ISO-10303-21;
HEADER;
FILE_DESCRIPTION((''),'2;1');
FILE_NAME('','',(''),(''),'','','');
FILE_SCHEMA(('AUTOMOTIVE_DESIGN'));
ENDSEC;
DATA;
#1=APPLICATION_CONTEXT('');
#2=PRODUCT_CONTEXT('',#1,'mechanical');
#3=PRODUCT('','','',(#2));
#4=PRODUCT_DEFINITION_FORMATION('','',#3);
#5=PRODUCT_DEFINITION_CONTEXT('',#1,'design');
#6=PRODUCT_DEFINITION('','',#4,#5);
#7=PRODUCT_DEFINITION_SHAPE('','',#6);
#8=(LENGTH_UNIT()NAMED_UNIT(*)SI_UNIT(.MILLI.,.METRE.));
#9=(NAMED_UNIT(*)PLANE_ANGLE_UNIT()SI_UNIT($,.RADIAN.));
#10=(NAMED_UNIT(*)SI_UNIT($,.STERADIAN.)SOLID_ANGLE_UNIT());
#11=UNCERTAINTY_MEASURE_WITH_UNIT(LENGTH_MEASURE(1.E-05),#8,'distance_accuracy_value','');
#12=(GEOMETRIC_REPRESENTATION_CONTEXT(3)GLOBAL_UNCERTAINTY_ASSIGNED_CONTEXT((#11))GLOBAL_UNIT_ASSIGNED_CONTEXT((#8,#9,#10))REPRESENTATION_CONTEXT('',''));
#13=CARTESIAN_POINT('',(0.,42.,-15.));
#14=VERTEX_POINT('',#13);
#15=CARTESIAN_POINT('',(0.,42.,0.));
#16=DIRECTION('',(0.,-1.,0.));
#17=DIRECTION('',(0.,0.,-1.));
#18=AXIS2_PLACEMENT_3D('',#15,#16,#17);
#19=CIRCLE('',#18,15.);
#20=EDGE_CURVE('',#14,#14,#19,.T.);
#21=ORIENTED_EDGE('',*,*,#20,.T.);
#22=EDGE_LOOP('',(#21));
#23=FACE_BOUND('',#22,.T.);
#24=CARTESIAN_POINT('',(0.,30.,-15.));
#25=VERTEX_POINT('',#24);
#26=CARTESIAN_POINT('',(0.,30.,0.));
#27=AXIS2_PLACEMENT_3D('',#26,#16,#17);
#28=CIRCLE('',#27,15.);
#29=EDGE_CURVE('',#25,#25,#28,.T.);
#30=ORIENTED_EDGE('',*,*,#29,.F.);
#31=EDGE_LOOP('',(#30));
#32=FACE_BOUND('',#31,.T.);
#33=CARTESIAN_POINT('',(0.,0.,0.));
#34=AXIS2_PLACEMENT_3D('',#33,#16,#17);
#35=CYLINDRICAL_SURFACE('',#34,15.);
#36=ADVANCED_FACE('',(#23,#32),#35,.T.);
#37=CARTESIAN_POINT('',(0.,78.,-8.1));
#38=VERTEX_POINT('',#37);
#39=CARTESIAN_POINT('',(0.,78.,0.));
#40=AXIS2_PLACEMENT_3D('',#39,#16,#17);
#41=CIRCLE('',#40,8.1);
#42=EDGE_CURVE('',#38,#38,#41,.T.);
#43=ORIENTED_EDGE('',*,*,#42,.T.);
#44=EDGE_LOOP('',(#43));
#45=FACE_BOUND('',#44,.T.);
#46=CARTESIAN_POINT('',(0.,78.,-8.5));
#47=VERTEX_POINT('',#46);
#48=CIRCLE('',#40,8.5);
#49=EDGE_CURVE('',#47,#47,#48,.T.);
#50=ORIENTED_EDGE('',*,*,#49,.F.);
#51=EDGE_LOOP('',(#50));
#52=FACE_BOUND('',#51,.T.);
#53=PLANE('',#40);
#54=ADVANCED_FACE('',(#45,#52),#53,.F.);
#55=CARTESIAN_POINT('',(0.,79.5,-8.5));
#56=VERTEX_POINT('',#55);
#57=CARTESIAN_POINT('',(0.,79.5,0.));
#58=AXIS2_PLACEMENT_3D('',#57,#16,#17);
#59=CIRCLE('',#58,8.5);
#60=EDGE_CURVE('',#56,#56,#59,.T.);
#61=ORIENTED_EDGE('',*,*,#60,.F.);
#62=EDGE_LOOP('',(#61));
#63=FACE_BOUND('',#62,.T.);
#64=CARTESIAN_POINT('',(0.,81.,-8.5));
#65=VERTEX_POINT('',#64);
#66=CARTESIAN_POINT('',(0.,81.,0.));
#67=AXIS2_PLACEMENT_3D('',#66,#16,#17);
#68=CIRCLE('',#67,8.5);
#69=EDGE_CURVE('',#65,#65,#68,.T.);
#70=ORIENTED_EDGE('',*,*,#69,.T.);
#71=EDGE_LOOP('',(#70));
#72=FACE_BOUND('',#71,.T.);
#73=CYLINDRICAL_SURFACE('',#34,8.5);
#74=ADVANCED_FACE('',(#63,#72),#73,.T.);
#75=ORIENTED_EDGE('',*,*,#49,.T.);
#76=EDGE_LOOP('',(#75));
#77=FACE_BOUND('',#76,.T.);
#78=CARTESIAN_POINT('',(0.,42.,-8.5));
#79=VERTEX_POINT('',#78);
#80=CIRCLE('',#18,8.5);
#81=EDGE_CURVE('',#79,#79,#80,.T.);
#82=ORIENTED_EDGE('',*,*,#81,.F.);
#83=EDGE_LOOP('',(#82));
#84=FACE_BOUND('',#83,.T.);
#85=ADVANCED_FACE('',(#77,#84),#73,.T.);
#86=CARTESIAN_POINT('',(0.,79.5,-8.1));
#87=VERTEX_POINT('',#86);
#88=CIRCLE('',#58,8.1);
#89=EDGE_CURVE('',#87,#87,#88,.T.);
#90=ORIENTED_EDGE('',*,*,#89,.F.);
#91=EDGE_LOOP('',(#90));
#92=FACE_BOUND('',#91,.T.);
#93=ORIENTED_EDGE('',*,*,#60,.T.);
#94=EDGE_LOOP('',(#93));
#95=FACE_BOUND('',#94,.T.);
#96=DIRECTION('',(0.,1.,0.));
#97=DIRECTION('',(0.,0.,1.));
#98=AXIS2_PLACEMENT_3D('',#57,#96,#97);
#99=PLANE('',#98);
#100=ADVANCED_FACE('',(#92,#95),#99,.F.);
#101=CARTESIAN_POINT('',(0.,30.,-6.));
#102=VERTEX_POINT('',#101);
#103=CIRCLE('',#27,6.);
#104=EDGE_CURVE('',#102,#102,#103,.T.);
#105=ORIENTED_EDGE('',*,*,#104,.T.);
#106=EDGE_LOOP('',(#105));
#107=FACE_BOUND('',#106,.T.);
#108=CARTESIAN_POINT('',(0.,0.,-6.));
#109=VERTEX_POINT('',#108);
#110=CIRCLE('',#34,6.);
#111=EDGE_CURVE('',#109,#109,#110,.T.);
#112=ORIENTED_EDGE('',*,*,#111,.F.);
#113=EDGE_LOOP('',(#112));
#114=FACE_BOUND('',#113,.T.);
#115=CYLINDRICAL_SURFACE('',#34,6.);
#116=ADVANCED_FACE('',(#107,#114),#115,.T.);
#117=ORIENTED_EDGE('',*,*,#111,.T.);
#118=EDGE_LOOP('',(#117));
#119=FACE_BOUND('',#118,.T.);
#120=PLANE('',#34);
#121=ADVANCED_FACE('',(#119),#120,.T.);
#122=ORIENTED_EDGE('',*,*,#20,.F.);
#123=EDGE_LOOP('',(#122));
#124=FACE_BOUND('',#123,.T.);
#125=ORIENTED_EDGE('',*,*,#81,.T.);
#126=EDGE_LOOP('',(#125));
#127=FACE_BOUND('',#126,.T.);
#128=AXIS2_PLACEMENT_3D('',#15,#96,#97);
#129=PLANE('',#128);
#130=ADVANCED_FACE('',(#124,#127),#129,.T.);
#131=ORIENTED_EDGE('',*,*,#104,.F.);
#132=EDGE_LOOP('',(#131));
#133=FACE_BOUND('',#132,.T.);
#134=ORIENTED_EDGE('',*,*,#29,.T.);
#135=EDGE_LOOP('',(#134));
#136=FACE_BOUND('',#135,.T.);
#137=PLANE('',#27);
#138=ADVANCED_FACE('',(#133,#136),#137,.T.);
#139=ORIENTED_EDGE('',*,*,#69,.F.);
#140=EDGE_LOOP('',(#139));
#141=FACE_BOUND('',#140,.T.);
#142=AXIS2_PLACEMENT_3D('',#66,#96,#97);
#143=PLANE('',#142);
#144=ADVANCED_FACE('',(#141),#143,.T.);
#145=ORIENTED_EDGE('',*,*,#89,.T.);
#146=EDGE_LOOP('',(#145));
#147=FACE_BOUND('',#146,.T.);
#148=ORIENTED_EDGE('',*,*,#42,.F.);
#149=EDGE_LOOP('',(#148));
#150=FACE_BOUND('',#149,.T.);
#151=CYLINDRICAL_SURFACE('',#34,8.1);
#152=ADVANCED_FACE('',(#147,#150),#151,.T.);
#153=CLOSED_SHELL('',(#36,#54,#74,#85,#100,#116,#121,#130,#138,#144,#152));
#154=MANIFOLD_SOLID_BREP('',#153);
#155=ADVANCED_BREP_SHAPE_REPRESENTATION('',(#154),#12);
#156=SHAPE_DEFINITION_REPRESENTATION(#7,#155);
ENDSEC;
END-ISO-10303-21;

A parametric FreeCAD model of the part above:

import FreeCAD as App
import Part
import Sketcher

V = App.Vector

doc = App.newDocument("Part")
params = doc.addObject("Spreadsheet::Sheet", "Params")
for row, (alias, value) in enumerate([
    ("sketch1_width", "6 mm"),
    ("sketch1_width2", "9 mm"),
    ("sketch1_height", "81 mm"),
    ("sketch1_height2", "30 mm"),
    ("sketch1_height3", "12 mm"),
    ("revolution_angle", "360 deg"),
], start=1):
    params.set(f"A{row}", alias)
    params.set(f"B{row}", "=" + value)
    params.setAlias(f"B{row}", alias)

body = doc.addObject("PartDesign::Body", "Body")

sketch1 = body.newObject("Sketcher::SketchObject", "Sketch")
sketch1.AttachmentSupport = (doc.getObject("XY_Plane"), [""])
sketch1.MapMode = "FlatFace"
sketch1.addGeometry(Part.LineSegment(V(0, 81, 0), V(0, 0, 0)), False)
sketch1.addGeometry(Part.LineSegment(V(0, 0, 0), V(6, 0, 0)), False)
sketch1.addGeometry(Part.LineSegment(V(6, 0, 0), V(6, 30, 0)), False)
sketch1.addGeometry(Part.LineSegment(V(6, 30, 0), V(15, 30, 0)), False)
sketch1.addGeometry(Part.LineSegment(V(15, 30, 0), V(15, 42, 0)), False)
sketch1.addGeometry(Part.LineSegment(V(15, 42, 0), V(8.5, 42, 0)), False)
sketch1.addGeometry(Part.LineSegment(V(8.5, 42, 0), V(8.5, 78, 0)), False)
sketch1.addGeometry(Part.LineSegment(V(8.5, 78, 0), V(8.1, 78, 0)), False)
sketch1.addGeometry(Part.LineSegment(V(8.1, 78, 0), V(8.1, 79.5, 0)), False)
sketch1.addGeometry(Part.LineSegment(V(8.1, 79.5, 0), V(8.5, 79.5, 0)), False)
sketch1.addGeometry(Part.LineSegment(V(8.5, 79.5, 0), V(8.5, 81, 0)), False)
sketch1.addGeometry(Part.LineSegment(V(8.5, 81, 0), V(0, 81, 0)), False)
sketch1.addConstraint(Sketcher.Constraint("Coincident", 0, 2, 1, 1))
sketch1.addConstraint(Sketcher.Constraint("Coincident", 1, 2, 2, 1))
sketch1.addConstraint(Sketcher.Constraint("Coincident", 2, 2, 3, 1))
sketch1.addConstraint(Sketcher.Constraint("Coincident", 3, 2, 4, 1))
sketch1.addConstraint(Sketcher.Constraint("Coincident", 4, 2, 5, 1))
sketch1.addConstraint(Sketcher.Constraint("Coincident", 5, 2, 6, 1))
sketch1.addConstraint(Sketcher.Constraint("Coincident", 6, 2, 7, 1))
sketch1.addConstraint(Sketcher.Constraint("Coincident", 7, 2, 8, 1))
sketch1.addConstraint(Sketcher.Constraint("Coincident", 8, 2, 9, 1))
sketch1.addConstraint(Sketcher.Constraint("Coincident", 9, 2, 10, 1))
sketch1.addConstraint(Sketcher.Constraint("Coincident", 10, 2, 11, 1))
sketch1.addConstraint(Sketcher.Constraint("Coincident", 11, 2, 0, 1))
sketch1.addConstraint(Sketcher.Constraint("Vertical", 0))
sketch1.addConstraint(Sketcher.Constraint("Horizontal", 1))
sketch1.addConstraint(Sketcher.Constraint("Vertical", 2))
sketch1.addConstraint(Sketcher.Constraint("Horizontal", 3))
sketch1.addConstraint(Sketcher.Constraint("Vertical", 4))
sketch1.addConstraint(Sketcher.Constraint("Horizontal", 5))
sketch1.addConstraint(Sketcher.Constraint("Vertical", 6))
sketch1.addConstraint(Sketcher.Constraint("Horizontal", 7))
sketch1.addConstraint(Sketcher.Constraint("Vertical", 8))
sketch1.addConstraint(Sketcher.Constraint("Horizontal", 9))
sketch1.addConstraint(Sketcher.Constraint("Vertical", 10))
sketch1.addConstraint(Sketcher.Constraint("Horizontal", 11))
sketch1.addConstraint(Sketcher.Constraint("Coincident", 0, 2, -1, 1))
sketch1.addConstraint(Sketcher.Constraint("Vertical", 6, 2, 9, 2))
sketch1.addConstraint(Sketcher.Constraint("Equal", 8, 10))
sketch1.addConstraint(Sketcher.Constraint("DistanceX", 1, 1, 1, 2, 6.0))
sketch1.addConstraint(Sketcher.Constraint("DistanceX", 3, 1, 3, 2, 9.0))
sketch1.addConstraint(Sketcher.Constraint("DistanceY", 0, 2, 0, 1, 81.0))
sketch1.addConstraint(Sketcher.Constraint("DistanceY", 2, 1, 2, 2, 30.0))
sketch1.addConstraint(Sketcher.Constraint("DistanceY", 4, 1, 4, 2, 12.0))
sketch1.addConstraint(Sketcher.Constraint("DistanceY", 6, 1, 6, 2, 36.0))
sketch1.addConstraint(Sketcher.Constraint("DistanceX", 5, 2, 5, 1, 6.5))
sketch1.addConstraint(Sketcher.Constraint("DistanceX", 7, 2, 7, 1, 0.4))
sketch1.setExpression("Constraints[27]", "Params.sketch1_width")
sketch1.setExpression("Constraints[28]", "Params.sketch1_width2")
sketch1.setExpression("Constraints[29]", "Params.sketch1_height")
sketch1.setExpression("Constraints[30]", "Params.sketch1_height2")
sketch1.setExpression("Constraints[31]", "Params.sketch1_height3")
revolution = body.newObject("PartDesign::Revolution", "Revolution")
revolution.Profile = sketch1
revolution.ReferenceAxis = (sketch1, ["V_Axis"])
revolution.setExpression("Angle", "Params.revolution_angle")

doc.recompute()
